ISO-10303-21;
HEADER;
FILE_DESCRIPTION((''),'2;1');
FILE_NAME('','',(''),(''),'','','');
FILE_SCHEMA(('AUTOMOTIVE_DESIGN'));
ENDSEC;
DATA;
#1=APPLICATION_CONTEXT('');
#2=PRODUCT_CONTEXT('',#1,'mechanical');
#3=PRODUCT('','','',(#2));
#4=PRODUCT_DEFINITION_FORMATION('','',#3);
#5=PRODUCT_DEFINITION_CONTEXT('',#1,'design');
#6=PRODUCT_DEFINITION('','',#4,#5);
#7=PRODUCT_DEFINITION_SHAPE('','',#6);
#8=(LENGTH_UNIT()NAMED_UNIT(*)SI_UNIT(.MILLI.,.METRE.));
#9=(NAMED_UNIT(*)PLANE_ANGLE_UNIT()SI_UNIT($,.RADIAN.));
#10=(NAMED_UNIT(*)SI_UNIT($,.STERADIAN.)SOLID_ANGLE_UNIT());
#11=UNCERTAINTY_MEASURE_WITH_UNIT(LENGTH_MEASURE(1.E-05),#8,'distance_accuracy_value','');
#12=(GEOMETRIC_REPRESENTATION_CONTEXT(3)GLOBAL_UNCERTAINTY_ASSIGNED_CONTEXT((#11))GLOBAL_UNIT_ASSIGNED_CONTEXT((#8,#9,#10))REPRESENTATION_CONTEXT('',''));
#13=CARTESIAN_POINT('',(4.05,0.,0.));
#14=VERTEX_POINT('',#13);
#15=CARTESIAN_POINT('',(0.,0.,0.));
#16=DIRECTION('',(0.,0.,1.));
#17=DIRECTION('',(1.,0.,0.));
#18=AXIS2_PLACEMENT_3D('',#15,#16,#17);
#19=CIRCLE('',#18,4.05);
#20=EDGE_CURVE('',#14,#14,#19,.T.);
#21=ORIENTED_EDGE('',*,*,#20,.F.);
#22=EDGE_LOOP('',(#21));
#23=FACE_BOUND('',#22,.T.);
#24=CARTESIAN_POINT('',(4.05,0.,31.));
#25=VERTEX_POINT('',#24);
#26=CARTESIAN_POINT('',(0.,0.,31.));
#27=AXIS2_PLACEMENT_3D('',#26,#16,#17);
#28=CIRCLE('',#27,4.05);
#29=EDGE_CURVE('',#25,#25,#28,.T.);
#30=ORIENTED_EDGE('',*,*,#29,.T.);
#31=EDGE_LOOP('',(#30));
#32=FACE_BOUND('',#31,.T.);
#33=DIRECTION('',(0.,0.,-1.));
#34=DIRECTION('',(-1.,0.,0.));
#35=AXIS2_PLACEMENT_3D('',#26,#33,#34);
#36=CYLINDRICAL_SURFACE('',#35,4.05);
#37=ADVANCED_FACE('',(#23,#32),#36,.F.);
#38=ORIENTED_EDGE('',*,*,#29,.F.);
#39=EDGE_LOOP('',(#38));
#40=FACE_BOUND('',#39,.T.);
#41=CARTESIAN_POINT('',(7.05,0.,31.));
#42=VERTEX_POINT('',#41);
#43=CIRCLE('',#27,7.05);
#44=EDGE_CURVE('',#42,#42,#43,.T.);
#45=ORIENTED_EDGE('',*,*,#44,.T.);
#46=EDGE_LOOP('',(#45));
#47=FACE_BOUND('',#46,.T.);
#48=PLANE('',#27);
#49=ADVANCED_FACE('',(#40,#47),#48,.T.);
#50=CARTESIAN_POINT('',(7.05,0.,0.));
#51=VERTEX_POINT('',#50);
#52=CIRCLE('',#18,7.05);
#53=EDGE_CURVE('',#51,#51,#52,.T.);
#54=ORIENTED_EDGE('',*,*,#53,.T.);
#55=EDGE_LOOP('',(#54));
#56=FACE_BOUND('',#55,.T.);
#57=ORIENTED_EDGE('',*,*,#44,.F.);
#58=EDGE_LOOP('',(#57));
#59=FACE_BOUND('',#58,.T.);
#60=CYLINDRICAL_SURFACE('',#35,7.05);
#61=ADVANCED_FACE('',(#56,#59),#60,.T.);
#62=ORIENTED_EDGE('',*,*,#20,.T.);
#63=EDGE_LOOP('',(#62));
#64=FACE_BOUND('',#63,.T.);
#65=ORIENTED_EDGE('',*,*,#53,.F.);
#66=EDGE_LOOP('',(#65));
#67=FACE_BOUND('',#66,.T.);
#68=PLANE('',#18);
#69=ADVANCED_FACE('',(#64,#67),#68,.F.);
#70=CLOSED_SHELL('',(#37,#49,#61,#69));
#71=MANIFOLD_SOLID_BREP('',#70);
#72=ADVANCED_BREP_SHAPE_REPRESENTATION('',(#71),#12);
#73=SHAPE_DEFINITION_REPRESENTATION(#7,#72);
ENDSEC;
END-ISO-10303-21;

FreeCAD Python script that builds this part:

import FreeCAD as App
import Part
import Sketcher
from FreeCAD import Vector
Q = App.Units.Quantity

doc = App.newDocument("Part")
body = doc.addObject("PartDesign::Body", "Body")

sketch1 = doc.addObject("Sketcher::SketchObject", "Sketch")
body.addObject(sketch1)
sketch1.AttachmentSupport = (doc.XY_Plane, [""])
sketch1.MapMode = "FlatFace"
sketch1.addGeometry(Part.Circle(Vector(0, 0, 0), Vector(0, 0, 1), 7), False)
sketch1.addGeometry(Part.Circle(Vector(0, 0, 0), Vector(0, 0, 1), 4), False)
sketch1.addConstraint(Sketcher.Constraint("Coincident", 0, 3, -1, 1))
sketch1.addConstraint(Sketcher.Constraint("Coincident", 1, 3, -1, 1))
sketch1.addConstraint(Sketcher.Constraint("Diameter", 0, Q("14.1 mm")))
sketch1.addConstraint(Sketcher.Constraint("Diameter", 1, Q("8.1 mm")))
pad1 = doc.addObject("PartDesign::Pad", "Pad")
body.addObject(pad1)
pad1.Profile = sketch1
pad1.Length = 31

doc.recompute()
